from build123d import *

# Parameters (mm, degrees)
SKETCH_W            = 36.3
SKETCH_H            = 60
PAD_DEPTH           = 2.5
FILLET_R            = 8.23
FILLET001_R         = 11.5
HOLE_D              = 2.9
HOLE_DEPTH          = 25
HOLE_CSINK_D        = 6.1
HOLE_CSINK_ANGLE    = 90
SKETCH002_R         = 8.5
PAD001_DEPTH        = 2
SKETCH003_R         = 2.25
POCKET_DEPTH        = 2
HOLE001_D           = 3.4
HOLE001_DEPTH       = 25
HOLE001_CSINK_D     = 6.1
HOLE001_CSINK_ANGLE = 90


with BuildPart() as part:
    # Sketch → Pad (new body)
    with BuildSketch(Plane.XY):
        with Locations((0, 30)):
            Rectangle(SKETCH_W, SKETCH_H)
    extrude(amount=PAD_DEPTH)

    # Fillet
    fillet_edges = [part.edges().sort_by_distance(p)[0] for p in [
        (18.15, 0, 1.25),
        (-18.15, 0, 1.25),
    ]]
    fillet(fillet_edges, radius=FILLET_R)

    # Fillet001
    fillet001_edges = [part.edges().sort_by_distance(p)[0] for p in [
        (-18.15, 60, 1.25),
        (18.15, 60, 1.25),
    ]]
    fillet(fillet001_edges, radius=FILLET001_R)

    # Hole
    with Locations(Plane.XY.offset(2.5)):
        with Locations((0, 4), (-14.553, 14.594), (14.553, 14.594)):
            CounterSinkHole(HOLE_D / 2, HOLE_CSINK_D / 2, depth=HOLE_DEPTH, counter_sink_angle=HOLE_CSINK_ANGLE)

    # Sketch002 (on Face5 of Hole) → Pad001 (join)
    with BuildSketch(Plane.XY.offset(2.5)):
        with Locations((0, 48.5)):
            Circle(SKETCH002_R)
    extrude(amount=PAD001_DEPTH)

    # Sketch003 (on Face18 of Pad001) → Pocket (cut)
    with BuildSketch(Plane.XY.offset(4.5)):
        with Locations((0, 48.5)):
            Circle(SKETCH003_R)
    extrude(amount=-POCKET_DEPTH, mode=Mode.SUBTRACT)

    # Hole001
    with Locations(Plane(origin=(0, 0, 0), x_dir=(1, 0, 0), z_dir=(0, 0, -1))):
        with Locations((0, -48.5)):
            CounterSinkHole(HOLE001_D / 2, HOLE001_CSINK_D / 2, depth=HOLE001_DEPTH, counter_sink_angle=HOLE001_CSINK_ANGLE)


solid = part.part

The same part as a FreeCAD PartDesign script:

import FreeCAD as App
import Part
import Sketcher
Q = App.Units.Quantity


def edges_at(feature, points):
    """Names of the edges that pass closest to the given points."""
    edges = feature.Shape.Edges
    near = lambda p: min(range(len(edges)), key=lambda i: edges[i].distToShape(Part.Vertex(*p))[0])
    return sorted({f"Edge{near(p) + 1}" for p in points})

doc = App.newDocument("Part")
body = doc.addObject("PartDesign::Body", "Body")

sketch1 = body.newObject("Sketcher::SketchObject", "Sketch")
sketch1.AttachmentSupport = (doc.getObject("XY_Plane"), [""])
sketch1.MapMode = "FlatFace"
sketch1.addGeometry([
    Part.LineSegment(App.Vector(-18.15, 60, 0), App.Vector(-18.15, 0, 0)),
    Part.LineSegment(App.Vector(-18.15, 0, 0), App.Vector(18.15, 0, 0)),
    Part.LineSegment(App.Vector(18.15, 0, 0), App.Vector(18.15, 60, 0)),
    Part.LineSegment(App.Vector(18.15, 60, 0), App.Vector(-18.15, 60, 0)),
], False)
sketch1.addConstraint([
    Sketcher.Constraint("Coincident", 0, 2, 1, 1),
    Sketcher.Constraint("Coincident", 1, 2, 2, 1),
    Sketcher.Constraint("Coincident", 2, 2, 3, 1),
    Sketcher.Constraint("Coincident", 3, 2, 0, 1),
    Sketcher.Constraint("Vertical", 0),
    Sketcher.Constraint("Horizontal", 1),
    Sketcher.Constraint("Vertical", 2),
    Sketcher.Constraint("Horizontal", 3),
    Sketcher.Constraint("Symmetric", 0, 2, 1, 2, -1, 1),
    Sketcher.Constraint("DistanceY", 0, 2, 0, 1, Q("60 mm")),
    Sketcher.Constraint("DistanceX", 1, 1, 1, 2, Q("36.3 mm")),
])
pad1 = body.newObject("PartDesign::Pad", "Pad")
pad1.Profile = sketch1
pad1.Length = 2.5
doc.recompute()

fillet = body.newObject("PartDesign::Fillet", "Fillet")
fillet.Base = (pad1, edges_at(pad1, [(18.15, 0, 1.25), (-18.15, 0, 1.25)]))
fillet.Radius = 8.23
doc.recompute()

fillet2 = body.newObject("PartDesign::Fillet", "Fillet001")
fillet2.Base = (fillet, edges_at(fillet, [(-18.15, 60, 1.25), (18.15, 60, 1.25)]))
fillet2.Radius = 11.5

sketch2 = body.newObject("Sketcher::SketchObject", "Sketch001")
sketch2.AttachmentSupport = (doc.getObject("XY_Plane"), [""])
sketch2.MapMode = "FlatFace"
sketch2.AttachmentOffset = App.Placement(App.Vector(0, 0, 2.5), App.Rotation())
sketch2.addGeometry([
    Part.Circle(App.Vector(0, 4, 0), App.Vector(0, 0, 1), 1.45),
    Part.Circle(App.Vector(-14.553, 14.594, 0), App.Vector(0, 0, 1), 1.45),
    Part.Circle(App.Vector(14.553, 14.594, 0), App.Vector(0, 0, 1), 1.45),
], False)
sketch2.addConstraint([
    Sketcher.Constraint("Equal", 0, 1),
    Sketcher.Constraint("Equal", 1, 2),
    Sketcher.Constraint("Symmetric", 1, 3, 2, 3, -2),
    Sketcher.Constraint("PointOnObject", 0, 3, -2),
    Sketcher.Constraint("Diameter", 0, Q("2.9 mm")),
    Sketcher.Constraint("DistanceY", -1, 1, 0, 3, Q("4 mm")),
    Sketcher.Constraint("DistanceX", 1, 3, -1, 1, Q("14.553 mm")),
    Sketcher.Constraint("DistanceY", -1, 1, 1, 3, Q("14.594 mm")),
])
doc.recompute()
hole = body.newObject("PartDesign::Hole", "Hole")
hole.Profile = sketch2
hole.ThreadType = "None"
hole.Diameter = 2.9
hole.DepthType = "Dimension"
hole.Depth = 25
hole.DrillPoint = "Flat"
hole.HoleCutType = "Countersink"
hole.HoleCutDiameter = 6.1
hole.HoleCutCountersinkAngle = 90

sketch3 = body.newObject("Sketcher::SketchObject", "Sketch002")
sketch3.AttachmentSupport = (doc.getObject("XY_Plane"), [""])
sketch3.MapMode = "FlatFace"
sketch3.AttachmentOffset = App.Placement(App.Vector(0, 0, 2.5), App.Rotation())
sketch3.addGeometry(Part.Circle(App.Vector(0, 48.5, 0), App.Vector(0, 0, 1), 8.5), False)
sketch3.addConstraint([
    Sketcher.Constraint("PointOnObject", 0, 3, -2),
    Sketcher.Constraint("Diameter", 0, Q("17 mm")),
    Sketcher.Constraint("DistanceY", -1, 1, 0, 3, Q("48.5 mm")),
])
pad2 = body.newObject("PartDesign::Pad", "Pad001")
pad2.Profile = sketch3
pad2.Length = 2

sketch4 = body.newObject("Sketcher::SketchObject", "Sketch003")
sketch4.AttachmentSupport = (doc.getObject("XY_Plane"), [""])
sketch4.MapMode = "FlatFace"
sketch4.AttachmentOffset = App.Placement(App.Vector(0, 0, 4.5), App.Rotation())
sketch4.addGeometry(Part.Circle(App.Vector(0, 48.5, 0), App.Vector(0, 0, 1), 2.25), False)
sketch4.addConstraint([
    Sketcher.Constraint("PointOnObject", 0, 3, -2),
    Sketcher.Constraint("Diameter", 0, Q("4.5 mm")),
    Sketcher.Constraint("DistanceY", -1, 1, 0, 3, Q("48.5 mm")),
])
pocket1 = body.newObject("PartDesign::Pocket", "Pocket")
pocket1.Profile = sketch4
pocket1.Length = 2

sketch5 = body.newObject("Sketcher::SketchObject", "Sketch004")
sketch5.AttachmentSupport = (doc.getObject("XY_Plane"), [""])
sketch5.MapMode = "FlatFace"
sketch5.addGeometry(Part.Circle(App.Vector(0, 48.5, 0), App.Vector(0, 0, 1), 1.7), False)
sketch5.addConstraint([
    Sketcher.Constraint("PointOnObject", 0, 3, -2),
    Sketcher.Constraint("Diameter", 0, Q("3.4 mm")),
    Sketcher.Constraint("DistanceY", -1, 1, 0, 3, Q("48.5 mm")),
])
doc.recompute()
hole2 = body.newObject("PartDesign::Hole", "Hole001")
hole2.Profile = sketch5
hole2.ThreadType = "None"
hole2.Diameter = 3.4
hole2.DepthType = "Dimension"
hole2.Depth = 25
hole2.DrillPoint = "Flat"
hole2.HoleCutType = "Countersink"
hole2.HoleCutDiameter = 6.1
hole2.HoleCutCountersinkAngle = 90
hole2.Reversed = True

doc.recompute()
